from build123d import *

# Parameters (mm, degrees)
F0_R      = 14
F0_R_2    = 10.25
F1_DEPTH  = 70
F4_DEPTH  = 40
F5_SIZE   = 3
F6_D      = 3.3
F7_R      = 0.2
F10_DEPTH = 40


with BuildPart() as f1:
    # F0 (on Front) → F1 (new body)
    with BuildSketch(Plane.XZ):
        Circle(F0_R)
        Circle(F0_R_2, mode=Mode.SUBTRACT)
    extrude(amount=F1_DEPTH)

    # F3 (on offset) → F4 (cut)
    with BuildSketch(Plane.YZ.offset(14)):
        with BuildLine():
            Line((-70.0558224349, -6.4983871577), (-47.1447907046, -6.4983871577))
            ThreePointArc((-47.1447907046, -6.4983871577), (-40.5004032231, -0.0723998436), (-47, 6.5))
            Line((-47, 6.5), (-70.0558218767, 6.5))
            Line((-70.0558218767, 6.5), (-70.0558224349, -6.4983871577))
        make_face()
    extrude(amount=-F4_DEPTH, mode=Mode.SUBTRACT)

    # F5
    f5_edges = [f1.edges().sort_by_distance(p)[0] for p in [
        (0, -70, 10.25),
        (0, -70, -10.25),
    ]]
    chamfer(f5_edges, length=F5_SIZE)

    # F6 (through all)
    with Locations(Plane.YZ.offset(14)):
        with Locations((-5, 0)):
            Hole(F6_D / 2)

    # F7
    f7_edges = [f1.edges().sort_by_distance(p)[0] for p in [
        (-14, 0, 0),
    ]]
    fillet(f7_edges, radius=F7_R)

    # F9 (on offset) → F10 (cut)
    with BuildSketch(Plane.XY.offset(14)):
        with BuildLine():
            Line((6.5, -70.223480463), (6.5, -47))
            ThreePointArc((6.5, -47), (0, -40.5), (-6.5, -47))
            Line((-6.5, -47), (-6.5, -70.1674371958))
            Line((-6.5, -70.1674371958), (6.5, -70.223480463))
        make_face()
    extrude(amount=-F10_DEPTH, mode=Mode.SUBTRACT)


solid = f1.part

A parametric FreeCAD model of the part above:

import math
import FreeCAD as App
import Part
import Sketcher

V = App.Vector
Q = App.Units.Quantity


def edges_at(feature, points):
    """Names of the edges that pass closest to the given points."""
    edges = feature.Shape.Edges
    near = lambda p: min(range(len(edges)), key=lambda i: edges[i].distToShape(Part.Vertex(*p))[0])
    return sorted({f"Edge{near(p) + 1}" for p in points})

doc = App.newDocument("Part")
body = doc.addObject("PartDesign::Body", "Body")

# Sketch on XZ plane
sketch1 = body.newObject("Sketcher::SketchObject", "Sketch")
sketch1.AttachmentSupport = (doc.getObject("XZ_Plane"), [""])
sketch1.MapMode = "FlatFace"
sketch1.addGeometry(Part.Circle(V(0, 0, 0), V(0, 0, 1), 14), False)
sketch1.addGeometry(Part.Circle(V(0, 0, 0), V(0, 0, 1), 10), False)
sketch1.addConstraint(Sketcher.Constraint("Coincident", 0, 3, -1, 1))
sketch1.addConstraint(Sketcher.Constraint("Coincident", 1, 3, -1, 1))
sketch1.addConstraint(Sketcher.Constraint("Diameter", 0, Q("28 mm")))
sketch1.addConstraint(Sketcher.Constraint("Diameter", 1, Q("20.5 mm")))
pad1 = body.newObject("PartDesign::Pad", "Pad")
pad1.Profile = sketch1
pad1.Length = 70

# Sketch on YZ plane
sketch2 = body.newObject("Sketcher::SketchObject", "Sketch001")
sketch2.AttachmentSupport = (doc.getObject("YZ_Plane"), [""])
sketch2.MapMode = "FlatFace"
sketch2.AttachmentOffset = App.Placement(V(0, 0, 14), App.Rotation())
sketch2.addGeometry(Part.LineSegment(V(-70, -6, 0), V(-47, -6, 0)), False)
sketch2.addGeometry(Part.ArcOfCircle(Part.Circle(V(-47, 0, 0), V(0, 0, 1), 6), math.radians(-91), math.radians(90)), False)
sketch2.addGeometry(Part.LineSegment(V(-47, 6, 0), V(-70, 6, 0)), False)
sketch2.addGeometry(Part.LineSegment(V(-70, 6, 0), V(-70, -6, 0)), False)
sketch2.addConstraint(Sketcher.Constraint("Coincident", 0, 2, 1, 1))
sketch2.addConstraint(Sketcher.Constraint("Tangent", 1, 2, 2, 1))
sketch2.addConstraint(Sketcher.Constraint("Coincident", 2, 2, 3, 1))
sketch2.addConstraint(Sketcher.Constraint("Coincident", 3, 2, 0, 1))
sketch2.addConstraint(Sketcher.Constraint("Horizontal", 0))
sketch2.addConstraint(Sketcher.Constraint("Horizontal", 2))
sketch2.addConstraint(Sketcher.Constraint("Vertical", 3))
sketch2.addConstraint(Sketcher.Constraint("PointOnObject", 1, 3, -1))
sketch2.addConstraint(Sketcher.Constraint("Radius", 1, Q("6.5 mm")))
sketch2.addConstraint(Sketcher.Constraint("DistanceX", 1, 3, -1, 1, Q("47 mm")))
sketch2.addConstraint(Sketcher.Constraint("DistanceX", 0, 1, 0, 2, Q("22.911032 mm")))
sketch2.addConstraint(Sketcher.Constraint("DistanceX", 2, 2, 2, 1, Q("23.055822 mm")))
pocket1 = body.newObject("PartDesign::Pocket", "Pocket")
pocket1.Profile = sketch2
pocket1.Length = 40
doc.recompute()

chamfer = body.newObject("PartDesign::Chamfer", "Chamfer")
chamfer.Base = (pocket1, edges_at(pocket1, [(0, -70, 10.25), (0, -70, -10.25)]))
chamfer.Size = 3

# Sketch on YZ plane
sketch3 = body.newObject("Sketcher::SketchObject", "Sketch002")
sketch3.AttachmentSupport = (doc.getObject("YZ_Plane"), [""])
sketch3.MapMode = "FlatFace"
sketch3.AttachmentOffset = App.Placement(V(0, 0, 14), App.Rotation())
sketch3.addGeometry(Part.Circle(V(-5, 0, 0), V(0, 0, 1), 1.6), False)
sketch3.addConstraint(Sketcher.Constraint("PointOnObject", 0, 3, -1))
sketch3.addConstraint(Sketcher.Constraint("Diameter", 0, Q("3.3 mm")))
sketch3.addConstraint(Sketcher.Constraint("DistanceX", 0, 3, -1, 1, Q("5 mm")))
doc.recompute()
hole = body.newObject("PartDesign::Hole", "Hole")
hole.Profile = sketch3
hole.ThreadType = "None"
hole.Diameter = 3.3
hole.DepthType = "ThroughAll"
doc.recompute()

fillet = body.newObject("PartDesign::Fillet", "Fillet")
fillet.Base = (hole, edges_at(hole, [(-14, 0, 0)]))
fillet.Radius = 0.2

# Sketch on XY plane
sketch4 = body.newObject("Sketcher::SketchObject", "Sketch003")
sketch4.AttachmentSupport = (doc.getObject("XY_Plane"), [""])
sketch4.MapMode = "FlatFace"
sketch4.AttachmentOffset = App.Placement(V(0, 0, 14), App.Rotation())
sketch4.addGeometry(Part.LineSegment(V(6.5, -70.22348, 0), V(6.5, -47, 0)), False)
sketch4.addGeometry(Part.ArcOfCircle(Part.Circle(V(0, -47, 0), V(0, 0, 1), 6.5), math.radians(0), math.radians(180)), False)
sketch4.addGeometry(Part.LineSegment(V(-6.5, -47, 0), V(-6.5, -70.167437, 0)), False)
sketch4.addGeometry(Part.LineSegment(V(-6.5, -70.167437, 0), V(6.5, -70.22348, 0)), False)
sketch4.addConstraint(Sketcher.Constraint("Coincident", 0, 2, 1, 1))
sketch4.addConstraint(Sketcher.Constraint("Coincident", 1, 2, 2, 1))
sketch4.addConstraint(Sketcher.Constraint("Coincident", 2, 2, 3, 1))
sketch4.addConstraint(Sketcher.Constraint("Coincident", 3, 2, 0, 1))
sketch4.addConstraint(Sketcher.Constraint("Vertical", 0))
sketch4.addConstraint(Sketcher.Constraint("Vertical", 2))
sketch4.addConstraint(Sketcher.Constraint("PointOnObject", 1, 3, -2))
sketch4.addConstraint(Sketcher.Constraint("Radius", 1, Q("6.5 mm")))
sketch4.addConstraint(Sketcher.Constraint("DistanceY", 1, 3, -1, 1, Q("47 mm")))
sketch4.addConstraint(Sketcher.Constraint("DistanceY", 0, 2, -1, 1, Q("47 mm")))
sketch4.addConstraint(Sketcher.Constraint("DistanceY", 1, 2, -1, 1, Q("47 mm")))
sketch4.addConstraint(Sketcher.Constraint("DistanceY", 0, 1, 0, 2, Q("23.22348 mm")))
sketch4.addConstraint(Sketcher.Constraint("Distance", 3, Q("13.000121 mm")))
pocket2 = body.newObject("PartDesign::Pocket", "Pocket001")
pocket2.Profile = sketch4
pocket2.Length = 40

doc.recompute()
